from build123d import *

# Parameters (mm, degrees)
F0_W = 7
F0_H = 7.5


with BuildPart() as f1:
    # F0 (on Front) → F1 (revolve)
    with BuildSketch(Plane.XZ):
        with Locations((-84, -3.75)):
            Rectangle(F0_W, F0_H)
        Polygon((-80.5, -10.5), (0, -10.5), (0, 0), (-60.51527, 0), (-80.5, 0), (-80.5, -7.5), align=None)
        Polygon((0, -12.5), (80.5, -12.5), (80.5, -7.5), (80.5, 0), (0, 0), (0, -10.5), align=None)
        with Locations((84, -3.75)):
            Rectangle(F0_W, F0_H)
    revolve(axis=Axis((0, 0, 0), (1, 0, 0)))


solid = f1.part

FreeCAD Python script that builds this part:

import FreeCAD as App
import Part
import Sketcher

doc = App.newDocument("Part")
body = doc.addObject("PartDesign::Body", "Body")

# Sketch on XZ plane
sketch1 = body.newObject("Sketcher::SketchObject", "Sketch")
sketch1.AttachmentSupport = (doc.getObject("XZ_Plane"), [""])
sketch1.MapMode = "FlatFace"
sketch1.addGeometry([
    Part.LineSegment(App.Vector(-87.5, 0, 0), App.Vector(-87.5, -7.5, 0)),  # 0
    Part.LineSegment(App.Vector(-87.5, -7.5, 0), App.Vector(-80.5, -7.5, 0)),  # 1
    Part.LineSegment(App.Vector(-80.5, -7.5, 0), App.Vector(-80.5, -10.5, 0)),  # 2
    Part.LineSegment(App.Vector(-80.5, -10.5, 0), App.Vector(0, -10.5, 0)),  # 3
    Part.LineSegment(App.Vector(0, -10.5, 0), App.Vector(0, -12.5, 0)),  # 4
    Part.LineSegment(App.Vector(0, -12.5, 0), App.Vector(80.5, -12.5, 0)),  # 5
    Part.LineSegment(App.Vector(80.5, -12.5, 0), App.Vector(80.5, -7.5, 0)),  # 6
    Part.LineSegment(App.Vector(80.5, -7.5, 0), App.Vector(87.5, -7.5, 0)),  # 7
    Part.LineSegment(App.Vector(87.5, -7.5, 0), App.Vector(87.5, 0, 0)),  # 8
    Part.LineSegment(App.Vector(87.5, 0, 0), App.Vector(-87.5, 0, 0)),  # 9
], False)
sketch1.addConstraint([
    Sketcher.Constraint("Coincident", 0, 2, 1, 1),
    Sketcher.Constraint("Coincident", 1, 2, 2, 1),
    Sketcher.Constraint("Coincident", 2, 2, 3, 1),
    Sketcher.Constraint("Coincident", 3, 2, 4, 1),
    Sketcher.Constraint("Coincident", 4, 2, 5, 1),
    Sketcher.Constraint("Coincident", 5, 2, 6, 1),
    Sketcher.Constraint("Coincident", 6, 2, 7, 1),
    Sketcher.Constraint("Coincident", 7, 2, 8, 1),
    Sketcher.Constraint("Coincident", 8, 2, 9, 1),
    Sketcher.Constraint("Coincident", 9, 2, 0, 1),
    Sketcher.Constraint("Vertical", 0),
    Sketcher.Constraint("Horizontal", 1),
    Sketcher.Constraint("Vertical", 2),
    Sketcher.Constraint("Horizontal", 3),
    Sketcher.Constraint("Vertical", 4),
    Sketcher.Constraint("Horizontal", 5),
    Sketcher.Constraint("Vertical", 6),
    Sketcher.Constraint("Horizontal", 7),
    Sketcher.Constraint("Vertical", 8),
    Sketcher.Constraint("Horizontal", 9),
    Sketcher.Constraint("Symmetric", 8, 2, 9, 2, -1, 1),
    Sketcher.Constraint("Symmetric", 1, 2, 6, 2, -2),
    Sketcher.Constraint("PointOnObject", 3, 2, -2),
    Sketcher.Constraint("DistanceX", 1, 1, 1, 2, 7.0),
    Sketcher.Constraint("DistanceX", 9, 2, 9, 1, 175.0),
    Sketcher.Constraint("DistanceY", 2, 2, 2, 1, 3.0),
    Sketcher.Constraint("DistanceY", 4, 2, 4, 1, 2.0),
    Sketcher.Constraint("DistanceY", 0, 2, 0, 1, 7.5),
])
revolution = body.newObject("PartDesign::Revolution", "Revolution")
revolution.Profile = sketch1
revolution.ReferenceAxis = (sketch1, ["H_Axis"])
revolution.Angle = 360

doc.recompute()
